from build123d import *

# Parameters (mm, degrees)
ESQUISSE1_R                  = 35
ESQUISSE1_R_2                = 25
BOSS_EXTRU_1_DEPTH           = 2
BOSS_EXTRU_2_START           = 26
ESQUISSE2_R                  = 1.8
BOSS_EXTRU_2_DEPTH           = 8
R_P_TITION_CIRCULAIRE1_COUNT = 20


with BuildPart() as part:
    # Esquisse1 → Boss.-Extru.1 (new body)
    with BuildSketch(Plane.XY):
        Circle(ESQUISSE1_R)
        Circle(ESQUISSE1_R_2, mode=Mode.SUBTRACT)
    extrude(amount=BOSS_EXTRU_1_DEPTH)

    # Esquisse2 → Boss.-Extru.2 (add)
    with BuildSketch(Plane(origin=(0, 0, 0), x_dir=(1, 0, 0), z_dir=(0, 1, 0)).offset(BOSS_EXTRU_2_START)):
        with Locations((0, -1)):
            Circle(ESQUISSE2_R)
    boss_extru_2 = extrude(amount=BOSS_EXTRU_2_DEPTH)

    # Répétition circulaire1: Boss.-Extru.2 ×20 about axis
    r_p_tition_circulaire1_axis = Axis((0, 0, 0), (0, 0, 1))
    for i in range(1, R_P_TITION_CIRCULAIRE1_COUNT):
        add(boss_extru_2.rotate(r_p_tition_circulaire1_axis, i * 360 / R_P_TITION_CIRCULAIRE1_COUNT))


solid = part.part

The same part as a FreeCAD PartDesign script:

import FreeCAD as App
import Part
import Sketcher
from FreeCAD import Vector

doc = App.newDocument("Part")
body = doc.addObject("PartDesign::Body", "Body")

# Sketch on XY plane
sketch1 = body.newObject("Sketcher::SketchObject", "Sketch")
sketch1.AttachmentSupport = (doc.getObject("XY_Plane"), [""])
sketch1.MapMode = "FlatFace"
sketch1.addGeometry([
    Part.Circle(Vector(0, 0, 0), Vector(0, 0, 1), 35),
    Part.Circle(Vector(0, 0, 0), Vector(0, 0, 1), 25),
], False)
sketch1.addConstraint([
    Sketcher.Constraint("Coincident", 0, 3, -1, 1),
    Sketcher.Constraint("Coincident", 1, 3, -1, 1),
    Sketcher.Constraint("Diameter", 0, 70.0),
    Sketcher.Constraint("Diameter", 1, 50.0),
])
pad1 = body.newObject("PartDesign::Pad", "Pad")
pad1.Profile = sketch1
pad1.Length = 2

# Sketch on XZ plane
sketch2 = body.newObject("Sketcher::SketchObject", "Sketch001")
sketch2.AttachmentSupport = (doc.getObject("XZ_Plane"), [""])
sketch2.MapMode = "FlatFace"
sketch2.AttachmentOffset = App.Placement(Vector(0, 0, -26), App.Rotation())
sketch2.addGeometry(Part.Circle(Vector(0, 1, 0), Vector(0, 0, 1), 1.8), False)
sketch2.addConstraint([
    Sketcher.Constraint("PointOnObject", 0, 3, -2),
    Sketcher.Constraint("Diameter", 0, 3.6),
    Sketcher.Constraint("DistanceY", -1, 1, 0, 3, 1.0),
])
pad2 = body.newObject("PartDesign::Pad", "Pad001")
pad2.Profile = sketch2
pad2.Length = 8
pad2.Reversed = True
doc.recompute()

polarpattern = body.newObject("PartDesign::PolarPattern", "PolarPattern")
polarpattern.Originals = [pad2]
polarpattern.Axis = (doc.getObject("Z_Axis"), [""])
polarpattern.Angle = 360
polarpattern.Occurrences = 20
body.Tip = polarpattern

doc.recompute()
